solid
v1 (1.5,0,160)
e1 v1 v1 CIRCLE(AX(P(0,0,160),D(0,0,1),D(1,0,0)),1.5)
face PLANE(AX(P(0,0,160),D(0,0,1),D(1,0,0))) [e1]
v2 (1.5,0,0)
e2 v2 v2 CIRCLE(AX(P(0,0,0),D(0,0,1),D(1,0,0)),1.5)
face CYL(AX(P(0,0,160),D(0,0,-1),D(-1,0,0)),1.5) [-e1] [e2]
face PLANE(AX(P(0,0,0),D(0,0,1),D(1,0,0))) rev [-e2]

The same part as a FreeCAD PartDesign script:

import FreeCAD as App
import Part
import Sketcher
from FreeCAD import Vector
Q = App.Units.Quantity

doc = App.newDocument("Part")
body = doc.addObject("PartDesign::Body", "Body")

# Sketch on XY plane
sketch1 = body.newObject("Sketcher::SketchObject", "Sketch")
sketch1.AttachmentSupport = (doc.getObject("XY_Plane"), [""])
sketch1.MapMode = "FlatFace"
sketch1.addGeometry(Part.Circle(Vector(0, 0, 0), Vector(0, 0, 1), 1.5), False)
sketch1.addConstraint([
    Sketcher.Constraint("Coincident", 0, 3, -1, 1),
    Sketcher.Constraint("Diameter", 0, Q("3 mm")),
])
pad1 = body.newObject("PartDesign::Pad", "Pad")
pad1.Profile = sketch1
pad1.Length = 160

doc.recompute()
